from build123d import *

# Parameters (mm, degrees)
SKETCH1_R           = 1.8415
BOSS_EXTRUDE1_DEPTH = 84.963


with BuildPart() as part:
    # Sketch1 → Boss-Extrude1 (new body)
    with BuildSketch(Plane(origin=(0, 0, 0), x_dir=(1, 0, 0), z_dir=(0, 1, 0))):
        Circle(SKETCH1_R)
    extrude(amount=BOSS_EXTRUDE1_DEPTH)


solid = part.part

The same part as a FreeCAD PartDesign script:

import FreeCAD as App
import Part
import Sketcher
from FreeCAD import Vector
Q = App.Units.Quantity

doc = App.newDocument("Part")
params = doc.addObject("Spreadsheet::Sheet", "Params")
for row, (alias, value) in enumerate([
    ("sketch1_diameter", "0.145 in"),
    ("pad1_length", "3.345 in"),
], start=1):
    params.set(f"A{row}", alias)
    params.set(f"B{row}", "=" + value)
    params.setAlias(f"B{row}", alias)

body = doc.addObject("PartDesign::Body", "Body")

# Sketch on XZ plane
sketch1 = body.newObject("Sketcher::SketchObject", "Sketch")
sketch1.AttachmentSupport = (doc.getObject("XZ_Plane"), [""])
sketch1.MapMode = "FlatFace"
sketch1.addGeometry(Part.Circle(Vector(0, 0, 0), Vector(0, 0, 1), 1.8), False)
sketch1.addConstraint([
    Sketcher.Constraint("Coincident", 0, 3, -1, 1),
    Sketcher.Constraint("Diameter", 0, Q("0.145 in")),
])
sketch1.setExpression("Constraints[1]", "Params.sketch1_diameter")
pad1 = body.newObject("PartDesign::Pad", "Pad")
pad1.Profile = sketch1
pad1.setExpression("Length", "Params.pad1_length")
pad1.Reversed = True

doc.recompute()
